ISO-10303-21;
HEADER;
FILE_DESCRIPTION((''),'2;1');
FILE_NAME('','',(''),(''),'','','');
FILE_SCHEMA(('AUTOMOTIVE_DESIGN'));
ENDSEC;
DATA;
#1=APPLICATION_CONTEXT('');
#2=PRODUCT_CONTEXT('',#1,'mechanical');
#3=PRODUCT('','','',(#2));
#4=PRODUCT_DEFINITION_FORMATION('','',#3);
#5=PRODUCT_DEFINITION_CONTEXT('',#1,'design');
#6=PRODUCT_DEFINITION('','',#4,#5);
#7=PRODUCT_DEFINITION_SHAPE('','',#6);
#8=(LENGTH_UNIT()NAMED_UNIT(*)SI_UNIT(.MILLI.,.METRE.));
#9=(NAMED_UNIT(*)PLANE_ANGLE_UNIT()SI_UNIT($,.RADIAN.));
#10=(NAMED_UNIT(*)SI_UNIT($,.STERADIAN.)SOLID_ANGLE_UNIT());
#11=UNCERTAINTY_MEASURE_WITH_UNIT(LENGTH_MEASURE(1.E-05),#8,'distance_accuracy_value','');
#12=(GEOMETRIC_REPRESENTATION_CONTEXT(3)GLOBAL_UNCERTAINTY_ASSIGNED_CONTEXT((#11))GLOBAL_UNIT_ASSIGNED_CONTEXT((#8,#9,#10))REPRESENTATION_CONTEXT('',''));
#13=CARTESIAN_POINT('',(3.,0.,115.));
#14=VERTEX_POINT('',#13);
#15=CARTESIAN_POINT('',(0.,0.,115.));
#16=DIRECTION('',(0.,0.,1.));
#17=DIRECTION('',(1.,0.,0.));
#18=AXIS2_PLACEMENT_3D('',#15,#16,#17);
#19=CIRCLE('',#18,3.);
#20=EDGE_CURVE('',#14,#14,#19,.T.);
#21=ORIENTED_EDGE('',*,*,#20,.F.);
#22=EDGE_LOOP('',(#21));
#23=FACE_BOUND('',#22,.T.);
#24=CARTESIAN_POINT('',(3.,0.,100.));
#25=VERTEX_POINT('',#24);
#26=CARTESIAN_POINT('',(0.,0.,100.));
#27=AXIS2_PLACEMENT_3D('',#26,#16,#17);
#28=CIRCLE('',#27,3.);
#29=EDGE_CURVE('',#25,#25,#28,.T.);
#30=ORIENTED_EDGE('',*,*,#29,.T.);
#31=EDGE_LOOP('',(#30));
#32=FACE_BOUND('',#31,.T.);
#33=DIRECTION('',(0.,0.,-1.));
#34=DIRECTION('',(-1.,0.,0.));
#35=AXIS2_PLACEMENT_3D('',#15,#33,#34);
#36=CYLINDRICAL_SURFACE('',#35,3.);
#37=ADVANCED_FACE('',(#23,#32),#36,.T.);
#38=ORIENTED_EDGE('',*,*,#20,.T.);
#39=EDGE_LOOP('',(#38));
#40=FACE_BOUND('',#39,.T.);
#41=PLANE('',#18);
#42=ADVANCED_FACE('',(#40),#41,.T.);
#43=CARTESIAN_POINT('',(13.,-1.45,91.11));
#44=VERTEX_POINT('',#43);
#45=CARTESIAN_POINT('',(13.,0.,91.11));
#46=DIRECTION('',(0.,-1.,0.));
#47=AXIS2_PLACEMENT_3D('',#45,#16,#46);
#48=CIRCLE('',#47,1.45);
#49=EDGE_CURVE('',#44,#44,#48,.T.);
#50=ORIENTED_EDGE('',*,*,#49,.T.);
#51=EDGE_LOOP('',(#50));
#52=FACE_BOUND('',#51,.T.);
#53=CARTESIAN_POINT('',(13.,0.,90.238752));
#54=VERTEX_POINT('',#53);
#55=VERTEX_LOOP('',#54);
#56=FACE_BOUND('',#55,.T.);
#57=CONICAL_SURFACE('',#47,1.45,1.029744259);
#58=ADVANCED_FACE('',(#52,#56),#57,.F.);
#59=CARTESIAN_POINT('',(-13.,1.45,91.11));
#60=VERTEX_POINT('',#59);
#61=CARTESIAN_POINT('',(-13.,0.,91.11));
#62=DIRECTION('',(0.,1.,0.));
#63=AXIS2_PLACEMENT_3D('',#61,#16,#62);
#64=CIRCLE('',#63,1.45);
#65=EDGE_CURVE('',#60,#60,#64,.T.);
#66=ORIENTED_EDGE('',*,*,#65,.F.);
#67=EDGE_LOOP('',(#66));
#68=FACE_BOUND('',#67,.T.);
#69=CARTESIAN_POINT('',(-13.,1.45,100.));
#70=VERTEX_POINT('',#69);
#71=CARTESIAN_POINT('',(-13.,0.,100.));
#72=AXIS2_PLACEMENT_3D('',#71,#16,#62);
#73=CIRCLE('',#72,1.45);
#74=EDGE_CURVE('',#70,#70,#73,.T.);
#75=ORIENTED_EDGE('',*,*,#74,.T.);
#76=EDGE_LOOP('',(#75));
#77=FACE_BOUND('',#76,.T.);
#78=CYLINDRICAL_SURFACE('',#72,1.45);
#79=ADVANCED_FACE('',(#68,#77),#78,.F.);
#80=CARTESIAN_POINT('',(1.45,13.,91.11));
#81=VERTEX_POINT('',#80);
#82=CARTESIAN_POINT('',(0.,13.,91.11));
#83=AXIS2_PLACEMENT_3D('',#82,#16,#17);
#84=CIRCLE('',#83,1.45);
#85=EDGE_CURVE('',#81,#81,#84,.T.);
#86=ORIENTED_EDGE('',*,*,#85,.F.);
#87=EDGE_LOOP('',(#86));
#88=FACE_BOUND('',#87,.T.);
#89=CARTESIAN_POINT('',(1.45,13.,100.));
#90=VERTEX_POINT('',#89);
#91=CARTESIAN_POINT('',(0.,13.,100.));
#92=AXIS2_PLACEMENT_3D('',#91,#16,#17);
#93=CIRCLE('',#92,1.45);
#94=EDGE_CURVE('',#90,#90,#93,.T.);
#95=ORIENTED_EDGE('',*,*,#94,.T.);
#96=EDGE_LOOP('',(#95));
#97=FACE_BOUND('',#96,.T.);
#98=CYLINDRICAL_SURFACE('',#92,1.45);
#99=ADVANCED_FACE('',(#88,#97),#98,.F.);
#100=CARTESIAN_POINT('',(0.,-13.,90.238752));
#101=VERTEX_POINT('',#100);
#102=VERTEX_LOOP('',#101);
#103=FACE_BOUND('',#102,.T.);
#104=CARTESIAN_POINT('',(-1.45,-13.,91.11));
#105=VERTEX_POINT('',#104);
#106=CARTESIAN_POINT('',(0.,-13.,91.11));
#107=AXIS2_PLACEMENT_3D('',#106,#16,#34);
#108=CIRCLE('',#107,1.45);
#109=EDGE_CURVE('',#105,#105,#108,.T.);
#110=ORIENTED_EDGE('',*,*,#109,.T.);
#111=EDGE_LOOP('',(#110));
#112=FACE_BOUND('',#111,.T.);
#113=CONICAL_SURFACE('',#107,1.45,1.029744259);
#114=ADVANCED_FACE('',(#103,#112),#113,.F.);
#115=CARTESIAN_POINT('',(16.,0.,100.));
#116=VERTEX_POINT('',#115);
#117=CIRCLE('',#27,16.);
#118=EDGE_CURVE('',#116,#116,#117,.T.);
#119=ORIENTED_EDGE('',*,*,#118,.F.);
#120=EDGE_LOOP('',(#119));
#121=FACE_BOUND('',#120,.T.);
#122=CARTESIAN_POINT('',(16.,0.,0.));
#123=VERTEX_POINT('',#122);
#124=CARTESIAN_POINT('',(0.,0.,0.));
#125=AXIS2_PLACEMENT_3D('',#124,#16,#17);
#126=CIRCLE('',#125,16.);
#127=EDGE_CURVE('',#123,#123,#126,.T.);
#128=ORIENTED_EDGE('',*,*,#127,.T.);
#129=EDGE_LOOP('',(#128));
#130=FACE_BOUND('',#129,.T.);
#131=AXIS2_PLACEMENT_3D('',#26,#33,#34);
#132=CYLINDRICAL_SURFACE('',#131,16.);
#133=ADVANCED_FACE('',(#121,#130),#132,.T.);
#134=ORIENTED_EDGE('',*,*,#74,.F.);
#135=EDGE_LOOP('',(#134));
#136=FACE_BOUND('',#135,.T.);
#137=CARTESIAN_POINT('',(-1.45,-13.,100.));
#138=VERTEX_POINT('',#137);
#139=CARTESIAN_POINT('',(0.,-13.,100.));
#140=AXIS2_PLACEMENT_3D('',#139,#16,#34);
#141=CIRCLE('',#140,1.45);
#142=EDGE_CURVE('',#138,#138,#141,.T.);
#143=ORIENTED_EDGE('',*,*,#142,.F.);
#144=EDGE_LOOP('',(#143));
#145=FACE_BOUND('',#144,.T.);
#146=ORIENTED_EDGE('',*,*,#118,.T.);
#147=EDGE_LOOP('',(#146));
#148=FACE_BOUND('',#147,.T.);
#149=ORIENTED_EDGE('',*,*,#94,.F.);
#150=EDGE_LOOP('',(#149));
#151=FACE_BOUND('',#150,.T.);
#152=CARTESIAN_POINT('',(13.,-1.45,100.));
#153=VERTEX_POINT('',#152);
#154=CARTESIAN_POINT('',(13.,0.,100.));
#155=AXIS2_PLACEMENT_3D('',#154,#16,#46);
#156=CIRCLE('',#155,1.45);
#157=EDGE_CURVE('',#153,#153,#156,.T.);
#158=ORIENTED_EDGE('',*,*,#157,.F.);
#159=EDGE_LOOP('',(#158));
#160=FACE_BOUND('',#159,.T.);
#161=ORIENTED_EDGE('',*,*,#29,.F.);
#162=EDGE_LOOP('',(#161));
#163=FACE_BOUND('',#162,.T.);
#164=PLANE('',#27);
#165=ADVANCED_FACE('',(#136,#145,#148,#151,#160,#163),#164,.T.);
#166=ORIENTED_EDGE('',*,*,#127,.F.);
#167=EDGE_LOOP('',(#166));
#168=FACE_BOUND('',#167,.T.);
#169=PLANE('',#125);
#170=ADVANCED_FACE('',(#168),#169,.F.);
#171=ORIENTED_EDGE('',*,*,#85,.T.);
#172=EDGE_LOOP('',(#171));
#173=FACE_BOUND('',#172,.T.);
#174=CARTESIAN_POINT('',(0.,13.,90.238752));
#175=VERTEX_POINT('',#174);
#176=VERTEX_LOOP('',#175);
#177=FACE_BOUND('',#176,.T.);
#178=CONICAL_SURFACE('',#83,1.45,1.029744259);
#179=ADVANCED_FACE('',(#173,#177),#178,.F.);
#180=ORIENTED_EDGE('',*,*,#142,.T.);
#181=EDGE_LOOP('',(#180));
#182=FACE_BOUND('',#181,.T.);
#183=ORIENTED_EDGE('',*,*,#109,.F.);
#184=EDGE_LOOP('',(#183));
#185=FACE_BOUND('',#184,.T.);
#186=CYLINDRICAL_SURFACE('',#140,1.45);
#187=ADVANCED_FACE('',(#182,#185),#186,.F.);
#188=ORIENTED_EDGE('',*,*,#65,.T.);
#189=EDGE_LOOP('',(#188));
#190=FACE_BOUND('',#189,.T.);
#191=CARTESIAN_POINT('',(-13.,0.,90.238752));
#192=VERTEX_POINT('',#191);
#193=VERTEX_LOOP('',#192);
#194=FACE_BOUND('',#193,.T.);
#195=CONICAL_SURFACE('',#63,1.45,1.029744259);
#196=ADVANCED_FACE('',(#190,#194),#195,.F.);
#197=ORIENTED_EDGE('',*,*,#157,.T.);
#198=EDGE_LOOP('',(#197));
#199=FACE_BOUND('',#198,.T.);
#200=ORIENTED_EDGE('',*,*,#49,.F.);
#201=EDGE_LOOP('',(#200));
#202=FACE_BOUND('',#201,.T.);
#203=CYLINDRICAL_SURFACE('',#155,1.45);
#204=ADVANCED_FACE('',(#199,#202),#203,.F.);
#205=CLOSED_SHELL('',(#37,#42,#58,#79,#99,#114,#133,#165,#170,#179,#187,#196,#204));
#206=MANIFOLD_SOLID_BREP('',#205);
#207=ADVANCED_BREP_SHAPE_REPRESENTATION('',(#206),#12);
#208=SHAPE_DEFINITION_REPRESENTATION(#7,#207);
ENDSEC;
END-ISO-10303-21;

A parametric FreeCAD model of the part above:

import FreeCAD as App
import Part
import Sketcher
from FreeCAD import Vector
Q = App.Units.Quantity


def add_polygon(sketch, points):
    """Adds a closed chain of lines whose ends are joined by coincident constraints."""
    first, n = sketch.GeometryCount, len(points)
    for a, b in zip(points, points[1:] + points[:1]):
        sketch.addGeometry(Part.LineSegment(App.Vector(*a, 0), App.Vector(*b, 0)), False)
    for i in range(n):
        sketch.addConstraint(Sketcher.Constraint("Coincident", first + i, 2, first + (i + 1) % n, 1))

doc = App.newDocument("Part")
body = doc.addObject("PartDesign::Body", "Body")

sketch1 = body.newObject("Sketcher::SketchObject", "Sketch")
sketch1.AttachmentSupport = (doc.getObject("XY_Plane"), [""])
sketch1.MapMode = "FlatFace"
sketch1.addGeometry(Part.Circle(Vector(0, 0, 0), Vector(0, 0, 1), 16), False)
sketch1.addConstraint(Sketcher.Constraint("Coincident", 0, 3, -1, 1))
sketch1.addConstraint(Sketcher.Constraint("Diameter", 0, 32.0))
pad1 = body.newObject("PartDesign::Pad", "Pad")
pad1.Profile = sketch1
pad1.Length = 100

sketch2 = body.newObject("Sketcher::SketchObject", "Sketch001")
sketch2.AttachmentSupport = (doc.getObject("XY_Plane"), [""])
sketch2.MapMode = "FlatFace"
sketch2.AttachmentOffset = App.Placement(Vector(0, 0, 100), App.Rotation())
sketch2.addGeometry(Part.Circle(Vector(0, 0, 0), Vector(0, 0, 1), 3), False)
sketch2.addConstraint(Sketcher.Constraint("Coincident", 0, 3, -1, 1))
sketch2.addConstraint(Sketcher.Constraint("Diameter", 0, 6.0))
pad2 = body.newObject("PartDesign::Pad", "Pad001")
pad2.Profile = sketch2
pad2.Length = 15

sketch3 = body.newObject("Sketcher::SketchObject", "Sketch002")
sketch3.AttachmentSupport = (doc.getObject("YZ_Plane"), [""])
sketch3.MapMode = "FlatFace"
add_polygon(sketch3, [(13, 90.2), (13, 100), (11.6, 100), (11.6, 91.1)])
sketch3.addGeometry(Part.LineSegment(Vector(13, 100, 0), Vector(13, 90.2, 0)), True)
sketch3.addConstraint(Sketcher.Constraint("Vertical", 0))
sketch3.addConstraint(Sketcher.Constraint("Horizontal", 1))
sketch3.addConstraint(Sketcher.Constraint("Vertical", 2))
sketch3.addConstraint(Sketcher.Constraint("Vertical", 4))
sketch3.addConstraint(Sketcher.Constraint("Coincident", 4, 1, 0, 2))
sketch3.addConstraint(Sketcher.Constraint("Equal", 0, 4))
sketch3.addConstraint(Sketcher.Constraint("Angle", 3, Q("-31 deg")))
sketch3.addConstraint(Sketcher.Constraint("DistanceX", -1, 1, 0, 2, 13.0))
sketch3.addConstraint(Sketcher.Constraint("DistanceY", -1, 1, 0, 2, 100.0))
sketch3.addConstraint(Sketcher.Constraint("DistanceX", 1, 2, 1, 1, 1.45))
sketch3.addConstraint(Sketcher.Constraint("DistanceY", 2, 2, 2, 1, 8.89))
groove = body.newObject("PartDesign::Groove", "Groove")
groove.Profile = sketch3
groove.ReferenceAxis = (sketch3, ["Axis0"])
groove.Angle = 360
doc.recompute()

polarpattern = body.newObject("PartDesign::PolarPattern", "PolarPattern")
polarpattern.Originals = [groove]
polarpattern.Axis = (doc.getObject("Z_Axis"), [""])
polarpattern.Angle = 360
polarpattern.Occurrences = 4
body.Tip = polarpattern

doc.recompute()
